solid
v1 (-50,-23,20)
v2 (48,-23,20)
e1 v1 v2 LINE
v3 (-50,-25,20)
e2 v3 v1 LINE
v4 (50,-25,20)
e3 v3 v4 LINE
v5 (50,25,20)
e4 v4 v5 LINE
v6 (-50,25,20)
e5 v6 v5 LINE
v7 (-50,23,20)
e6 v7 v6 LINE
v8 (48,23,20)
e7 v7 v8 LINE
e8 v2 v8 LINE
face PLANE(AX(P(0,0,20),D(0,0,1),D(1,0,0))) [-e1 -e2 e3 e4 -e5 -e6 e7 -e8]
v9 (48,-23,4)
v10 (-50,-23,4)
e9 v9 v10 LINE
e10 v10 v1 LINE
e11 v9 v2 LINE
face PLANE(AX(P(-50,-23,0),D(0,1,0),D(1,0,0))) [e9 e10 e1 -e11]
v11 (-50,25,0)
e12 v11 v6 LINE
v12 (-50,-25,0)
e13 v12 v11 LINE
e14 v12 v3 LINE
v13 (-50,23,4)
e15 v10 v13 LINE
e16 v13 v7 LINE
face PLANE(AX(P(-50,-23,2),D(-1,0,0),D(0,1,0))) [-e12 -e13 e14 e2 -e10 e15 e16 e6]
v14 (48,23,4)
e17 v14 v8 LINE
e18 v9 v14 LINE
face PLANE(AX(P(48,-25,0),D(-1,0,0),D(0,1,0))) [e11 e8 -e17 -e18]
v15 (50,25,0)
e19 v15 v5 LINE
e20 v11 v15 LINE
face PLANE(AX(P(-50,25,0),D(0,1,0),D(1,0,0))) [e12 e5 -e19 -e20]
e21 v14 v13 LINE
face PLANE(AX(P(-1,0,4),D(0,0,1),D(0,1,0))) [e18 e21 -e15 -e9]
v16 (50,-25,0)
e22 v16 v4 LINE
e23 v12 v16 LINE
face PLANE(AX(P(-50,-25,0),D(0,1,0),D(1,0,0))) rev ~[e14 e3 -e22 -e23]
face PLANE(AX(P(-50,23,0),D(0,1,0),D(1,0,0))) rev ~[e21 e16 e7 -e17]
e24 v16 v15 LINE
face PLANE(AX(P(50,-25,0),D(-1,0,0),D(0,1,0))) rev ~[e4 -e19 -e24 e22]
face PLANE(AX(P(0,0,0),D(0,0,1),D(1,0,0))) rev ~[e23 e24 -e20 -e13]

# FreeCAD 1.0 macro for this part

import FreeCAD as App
import Part
import Sketcher

V = App.Vector


def faces_at(feature, points):
    """Names of the faces that lie closest to the given points."""
    faces = feature.Shape.Faces
    near = lambda p: min(range(len(faces)), key=lambda i: faces[i].distToShape(Part.Vertex(*p))[0])
    return sorted({f"Face{near(p) + 1}" for p in points})


def add_polygon(sketch, points):
    """Adds a closed chain of lines whose ends are joined by coincident constraints."""
    first, n = sketch.GeometryCount, len(points)
    for a, b in zip(points, points[1:] + points[:1]):
        sketch.addGeometry(Part.LineSegment(App.Vector(*a, 0), App.Vector(*b, 0)), False)
    for i in range(n):
        sketch.addConstraint(Sketcher.Constraint("Coincident", first + i, 2, first + (i + 1) % n, 1))

doc = App.newDocument("Part")
body = doc.addObject("PartDesign::Body", "Body")

# Sketch on XY plane
sketch1 = body.newObject("Sketcher::SketchObject", "Sketch")
sketch1.AttachmentSupport = (doc.getObject("XY_Plane"), [""])
sketch1.MapMode = "FlatFace"
add_polygon(sketch1, [(-50, 25), (-50, -25), (50, -25), (50, 25)])  # lines 0-3
sketch1.addConstraint([
    Sketcher.Constraint("Vertical", 0),
    Sketcher.Constraint("Horizontal", 1),
    Sketcher.Constraint("Vertical", 2),
    Sketcher.Constraint("Horizontal", 3),
    Sketcher.Constraint("Symmetric", 0, 2, 2, 2, -1, 1),
    Sketcher.Constraint("DistanceX", 1, 1, 1, 2, 100.0),
    Sketcher.Constraint("DistanceY", 0, 2, 0, 1, 50.0),
])
pad1 = body.newObject("PartDesign::Pad", "Pad")
pad1.Profile = sketch1
pad1.Length = 20
doc.recompute()

thickness = body.newObject("PartDesign::Thickness", "Thickness")
thickness.Base = (pad1, faces_at(pad1, [(0, 0, 20), (-50, 0, 10)]))
thickness.Value = 2
thickness.Reversed = True
thickness.Join = "Arc"

# Sketch on XY plane
sketch2 = body.newObject("Sketcher::SketchObject", "Sketch001")
sketch2.AttachmentSupport = (doc.getObject("XY_Plane"), [""])
sketch2.MapMode = "FlatFace"
sketch2.AttachmentOffset = App.Placement(V(0, 0, 2), App.Rotation())
add_polygon(sketch2, [(-50, -23), (48, -23), (48, 23), (-50, 23)])  # lines 0-3
sketch2.addConstraint([
    Sketcher.Constraint("Horizontal", 0),
    Sketcher.Constraint("Vertical", 1),
    Sketcher.Constraint("Horizontal", 2),
    Sketcher.Constraint("Vertical", 3),
    Sketcher.Constraint("DistanceX", 0, 1, 0, 2, 98.0),
    Sketcher.Constraint("DistanceY", 1, 1, 1, 2, 46.0),
    Sketcher.Constraint("DistanceX", -1, 1, 0, 2, 48.0),
    Sketcher.Constraint("DistanceY", 0, 2, -1, 1, 23.0),
])
pad2 = body.newObject("PartDesign::Pad", "Pad001")
pad2.Profile = sketch2
pad2.Length = 2

doc.recompute()
